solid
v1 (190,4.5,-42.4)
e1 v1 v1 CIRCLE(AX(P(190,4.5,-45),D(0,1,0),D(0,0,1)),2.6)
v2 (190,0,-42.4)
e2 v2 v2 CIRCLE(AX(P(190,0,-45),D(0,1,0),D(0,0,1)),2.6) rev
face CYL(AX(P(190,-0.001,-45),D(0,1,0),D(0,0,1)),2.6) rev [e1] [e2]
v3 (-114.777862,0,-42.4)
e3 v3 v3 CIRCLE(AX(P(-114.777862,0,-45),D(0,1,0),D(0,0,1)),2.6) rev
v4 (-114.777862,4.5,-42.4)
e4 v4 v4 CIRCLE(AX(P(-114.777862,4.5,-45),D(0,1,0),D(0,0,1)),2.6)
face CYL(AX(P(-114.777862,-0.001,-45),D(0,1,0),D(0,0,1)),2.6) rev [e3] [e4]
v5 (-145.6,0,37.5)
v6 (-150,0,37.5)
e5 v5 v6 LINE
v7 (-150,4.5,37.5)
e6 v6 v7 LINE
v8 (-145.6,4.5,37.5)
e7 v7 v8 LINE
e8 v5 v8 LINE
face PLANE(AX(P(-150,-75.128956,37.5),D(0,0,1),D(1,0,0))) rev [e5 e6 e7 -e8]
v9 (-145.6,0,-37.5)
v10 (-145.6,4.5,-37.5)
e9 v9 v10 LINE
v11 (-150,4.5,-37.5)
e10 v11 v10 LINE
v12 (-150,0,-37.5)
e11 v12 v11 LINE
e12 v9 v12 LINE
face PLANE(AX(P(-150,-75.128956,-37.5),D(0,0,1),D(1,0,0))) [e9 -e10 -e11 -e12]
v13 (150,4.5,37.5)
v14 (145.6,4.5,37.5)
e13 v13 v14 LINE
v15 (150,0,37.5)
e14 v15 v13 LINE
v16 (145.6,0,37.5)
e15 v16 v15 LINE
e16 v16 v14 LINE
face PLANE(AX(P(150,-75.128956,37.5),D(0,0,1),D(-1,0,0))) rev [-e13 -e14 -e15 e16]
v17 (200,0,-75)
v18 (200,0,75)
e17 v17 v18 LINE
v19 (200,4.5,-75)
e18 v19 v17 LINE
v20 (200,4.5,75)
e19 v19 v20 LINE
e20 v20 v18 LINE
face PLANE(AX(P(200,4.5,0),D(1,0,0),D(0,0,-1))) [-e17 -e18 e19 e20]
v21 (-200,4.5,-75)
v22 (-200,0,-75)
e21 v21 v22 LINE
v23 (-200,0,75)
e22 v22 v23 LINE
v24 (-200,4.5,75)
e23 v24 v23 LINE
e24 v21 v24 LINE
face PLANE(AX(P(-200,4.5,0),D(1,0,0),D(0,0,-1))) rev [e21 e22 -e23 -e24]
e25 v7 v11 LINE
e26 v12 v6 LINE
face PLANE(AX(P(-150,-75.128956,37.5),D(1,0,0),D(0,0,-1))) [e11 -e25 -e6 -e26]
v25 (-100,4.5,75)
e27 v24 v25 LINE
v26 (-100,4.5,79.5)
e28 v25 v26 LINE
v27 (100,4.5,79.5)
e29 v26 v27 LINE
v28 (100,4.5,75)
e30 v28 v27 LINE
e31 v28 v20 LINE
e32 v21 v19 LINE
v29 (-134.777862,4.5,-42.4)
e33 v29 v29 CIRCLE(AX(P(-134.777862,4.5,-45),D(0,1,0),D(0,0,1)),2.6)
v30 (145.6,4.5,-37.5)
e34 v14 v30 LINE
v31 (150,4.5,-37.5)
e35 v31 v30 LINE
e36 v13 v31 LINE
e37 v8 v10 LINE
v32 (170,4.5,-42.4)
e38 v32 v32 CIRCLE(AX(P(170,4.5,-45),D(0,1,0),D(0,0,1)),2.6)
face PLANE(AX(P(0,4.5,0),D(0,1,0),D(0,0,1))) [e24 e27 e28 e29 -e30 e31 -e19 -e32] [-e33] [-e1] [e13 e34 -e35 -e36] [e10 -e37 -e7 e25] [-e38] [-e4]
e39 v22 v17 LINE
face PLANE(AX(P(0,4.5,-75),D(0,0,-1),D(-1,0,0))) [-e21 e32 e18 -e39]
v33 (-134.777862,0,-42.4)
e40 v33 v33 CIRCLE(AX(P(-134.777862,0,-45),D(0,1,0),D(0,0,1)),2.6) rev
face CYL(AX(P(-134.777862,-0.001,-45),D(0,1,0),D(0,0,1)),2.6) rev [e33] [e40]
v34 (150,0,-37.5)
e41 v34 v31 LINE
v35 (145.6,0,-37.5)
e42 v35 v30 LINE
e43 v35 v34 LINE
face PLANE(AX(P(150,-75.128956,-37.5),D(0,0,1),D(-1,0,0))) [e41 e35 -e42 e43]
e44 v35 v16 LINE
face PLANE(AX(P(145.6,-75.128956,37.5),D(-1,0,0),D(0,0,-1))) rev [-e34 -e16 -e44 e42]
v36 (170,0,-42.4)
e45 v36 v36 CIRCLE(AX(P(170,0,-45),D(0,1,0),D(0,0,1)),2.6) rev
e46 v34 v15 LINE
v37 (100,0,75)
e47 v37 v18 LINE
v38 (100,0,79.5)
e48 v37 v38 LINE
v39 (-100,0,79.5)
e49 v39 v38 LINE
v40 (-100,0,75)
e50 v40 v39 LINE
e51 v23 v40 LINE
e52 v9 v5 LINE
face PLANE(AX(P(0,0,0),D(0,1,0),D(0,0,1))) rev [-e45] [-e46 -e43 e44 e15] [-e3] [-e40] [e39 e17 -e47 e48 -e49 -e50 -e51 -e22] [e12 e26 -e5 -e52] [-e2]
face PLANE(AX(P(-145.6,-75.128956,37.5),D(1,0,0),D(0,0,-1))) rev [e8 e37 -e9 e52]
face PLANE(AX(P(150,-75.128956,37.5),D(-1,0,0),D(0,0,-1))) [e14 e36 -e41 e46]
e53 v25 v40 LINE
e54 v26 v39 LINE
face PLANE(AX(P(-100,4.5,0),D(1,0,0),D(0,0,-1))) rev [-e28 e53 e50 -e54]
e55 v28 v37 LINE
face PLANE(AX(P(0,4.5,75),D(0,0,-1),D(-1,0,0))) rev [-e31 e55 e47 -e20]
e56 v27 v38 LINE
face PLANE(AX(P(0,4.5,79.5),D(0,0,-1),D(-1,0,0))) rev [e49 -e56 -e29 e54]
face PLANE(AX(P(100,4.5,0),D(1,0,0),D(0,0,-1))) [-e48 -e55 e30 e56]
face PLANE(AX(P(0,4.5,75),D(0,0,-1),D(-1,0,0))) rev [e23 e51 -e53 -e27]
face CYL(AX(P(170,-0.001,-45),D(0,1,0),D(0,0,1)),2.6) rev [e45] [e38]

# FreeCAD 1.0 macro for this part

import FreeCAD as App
import Part
import Sketcher
from FreeCAD import Vector
Q = App.Units.Quantity


def add_polygon(sketch, points):
    """Adds a closed chain of lines whose ends are joined by coincident constraints."""
    first, n = sketch.GeometryCount, len(points)
    for a, b in zip(points, points[1:] + points[:1]):
        sketch.addGeometry(Part.LineSegment(App.Vector(*a, 0), App.Vector(*b, 0)), False)
    for i in range(n):
        sketch.addConstraint(Sketcher.Constraint("Coincident", first + i, 2, first + (i + 1) % n, 1))

doc = App.newDocument("Part")
body = doc.addObject("PartDesign::Body", "Body")

# Sketch on XZ plane
sketch1 = doc.addObject("Sketcher::SketchObject", "Sketch")
body.addObject(sketch1)
sketch1.AttachmentSupport = (doc.XZ_Plane, [""])
sketch1.MapMode = "FlatFace"
add_polygon(sketch1, [(200, -75), (-200, -75), (-200, 75), (-100, 75), (-100, 79.5), (100, 79.5), (100, 75), (200, 75)])  # lines 0-7
sketch1.addConstraint(Sketcher.Constraint("Horizontal", 0))
sketch1.addConstraint(Sketcher.Constraint("Vertical", 1))
sketch1.addConstraint(Sketcher.Constraint("Horizontal", 2))
sketch1.addConstraint(Sketcher.Constraint("Vertical", 3))
sketch1.addConstraint(Sketcher.Constraint("Horizontal", 4))
sketch1.addConstraint(Sketcher.Constraint("Vertical", 5))
sketch1.addConstraint(Sketcher.Constraint("Horizontal", 6))
sketch1.addConstraint(Sketcher.Constraint("Vertical", 7))
sketch1.addConstraint(Sketcher.Constraint("Symmetric", 0, 2, 6, 2, -1, 1))
sketch1.addConstraint(Sketcher.Constraint("Symmetric", 2, 2, 5, 2, -2))
sketch1.addConstraint(Sketcher.Constraint("DistanceX", 0, 2, 0, 1, Q("400 mm")))
sketch1.addConstraint(Sketcher.Constraint("DistanceX", 2, 1, 2, 2, Q("100 mm")))
sketch1.addConstraint(Sketcher.Constraint("DistanceY", 1, 1, 1, 2, Q("150 mm")))
sketch1.addConstraint(Sketcher.Constraint("DistanceY", 3, 1, 3, 2, Q("4.5 mm")))
pad1 = doc.addObject("PartDesign::Pad", "Pad")
body.addObject(pad1)
pad1.Profile = sketch1
pad1.Length = 4.5
pad1.Reversed = True

# Sketch on XZ plane
sketch2 = doc.addObject("Sketcher::SketchObject", "Sketch001")
body.addObject(sketch2)
sketch2.AttachmentSupport = (doc.XZ_Plane, [""])
sketch2.MapMode = "FlatFace"
sketch2.AttachmentOffset = App.Placement(Vector(0, 0, -4.5), App.Rotation())
add_polygon(sketch2, [(-150, -37.5), (-150, 37.5), (-145.6, 37.5), (-145.6, -37.5)])  # lines 0-3
sketch2.addConstraint(Sketcher.Constraint("Vertical", 0))
sketch2.addConstraint(Sketcher.Constraint("Horizontal", 1))
sketch2.addConstraint(Sketcher.Constraint("Vertical", 2))
sketch2.addConstraint(Sketcher.Constraint("Horizontal", 3))
sketch2.addConstraint(Sketcher.Constraint("DistanceY", 0, 1, 0, 2, Q("75 mm")))
sketch2.addConstraint(Sketcher.Constraint("DistanceX", 1, 1, 1, 2, Q("4.4 mm")))
sketch2.addConstraint(Sketcher.Constraint("DistanceX", 0, 2, -1, 1, Q("150 mm")))
sketch2.addConstraint(Sketcher.Constraint("DistanceY", -1, 1, 0, 2, Q("37.5 mm")))
pocket1 = doc.addObject("PartDesign::Pocket", "Pocket")
body.addObject(pocket1)
pocket1.Profile = sketch2
pocket1.Length = 4.5
pocket1.Reversed = True
doc.recompute()

mirrored = doc.addObject("PartDesign::Mirrored", "Mirrored")
body.addObject(mirrored)
mirrored.Originals = [pocket1]
mirrored.MirrorPlane = (doc.YZ_Plane, [""])
body.Tip = mirrored

# Sketch on XZ plane
sketch3 = doc.addObject("Sketcher::SketchObject", "Sketch002")
body.addObject(sketch3)
sketch3.AttachmentSupport = (doc.XZ_Plane, [""])
sketch3.MapMode = "FlatFace"
sketch3.AttachmentOffset = App.Placement(Vector(0, 0, -4.5), App.Rotation())
sketch3.addGeometry(Part.Circle(Vector(-114.8, -45, 0), Vector(0, 0, 1), 2.6), False)
sketch3.addConstraint(Sketcher.Constraint("Diameter", 0, Q("5.2 mm")))
sketch3.addConstraint(Sketcher.Constraint("DistanceY", 0, 3, -1, 1, Q("45 mm")))
sketch3.addConstraint(Sketcher.Constraint("DistanceX", 0, 3, -1, 1, Q("114.777862 mm")))
pocket2 = doc.addObject("PartDesign::Pocket", "Pocket001")
body.addObject(pocket2)
pocket2.Profile = sketch3
pocket2.Type = "UpToFirst"
pocket2.Reversed = True

# Sketch on XZ plane
sketch4 = doc.addObject("Sketcher::SketchObject", "Sketch003")
body.addObject(sketch4)
sketch4.AttachmentSupport = (doc.XZ_Plane, [""])
sketch4.MapMode = "FlatFace"
sketch4.AttachmentOffset = App.Placement(Vector(0, 0, -4.5), App.Rotation())
sketch4.addGeometry(Part.Circle(Vector(170, -45, 0), Vector(0, 0, 1), 2.6), False)
sketch4.addConstraint(Sketcher.Constraint("Diameter", 0, Q("5.2 mm")))
sketch4.addConstraint(Sketcher.Constraint("DistanceX", -1, 1, 0, 3, Q("170 mm")))
sketch4.addConstraint(Sketcher.Constraint("DistanceY", 0, 3, -1, 1, Q("45 mm")))
pocket3 = doc.addObject("PartDesign::Pocket", "Pocket002")
body.addObject(pocket3)
pocket3.Profile = sketch4
pocket3.Type = "UpToFirst"
pocket3.Reversed = True

# Sketch on XZ plane
sketch5 = doc.addObject("Sketcher::SketchObject", "Sketch004")
body.addObject(sketch5)
sketch5.AttachmentSupport = (doc.XZ_Plane, [""])
sketch5.MapMode = "FlatFace"
sketch5.AttachmentOffset = App.Placement(Vector(0, 0, -4.5), App.Rotation())
sketch5.addGeometry(Part.Circle(Vector(-134.8, -45, 0), Vector(0, 0, 1), 2.6), False)
sketch5.addConstraint(Sketcher.Constraint("Diameter", 0, Q("5.2 mm")))
sketch5.addConstraint(Sketcher.Constraint("DistanceY", 0, 3, -1, 1, Q("45 mm")))
sketch5.addConstraint(Sketcher.Constraint("DistanceX", 0, 3, -1, 1, Q("134.777862 mm")))
pocket4 = doc.addObject("PartDesign::Pocket", "Pocket003")
body.addObject(pocket4)
pocket4.Profile = sketch5
pocket4.Type = "UpToFirst"
pocket4.Reversed = True

# Sketch on XZ plane
sketch6 = doc.addObject("Sketcher::SketchObject", "Sketch005")
body.addObject(sketch6)
sketch6.AttachmentSupport = (doc.XZ_Plane, [""])
sketch6.MapMode = "FlatFace"
sketch6.AttachmentOffset = App.Placement(Vector(0, 0, -4.5), App.Rotation())
sketch6.addGeometry(Part.Circle(Vector(190, -45, 0), Vector(0, 0, 1), 2.6), False)
sketch6.addConstraint(Sketcher.Constraint("Diameter", 0, Q("5.2 mm")))
sketch6.addConstraint(Sketcher.Constraint("DistanceX", -1, 1, 0, 3, Q("190 mm")))
sketch6.addConstraint(Sketcher.Constraint("DistanceY", 0, 3, -1, 1, Q("45 mm")))
pocket5 = doc.addObject("PartDesign::Pocket", "Pocket004")
body.addObject(pocket5)
pocket5.Profile = sketch6
pocket5.Type = "UpToFirst"
pocket5.Reversed = True

doc.recompute()
